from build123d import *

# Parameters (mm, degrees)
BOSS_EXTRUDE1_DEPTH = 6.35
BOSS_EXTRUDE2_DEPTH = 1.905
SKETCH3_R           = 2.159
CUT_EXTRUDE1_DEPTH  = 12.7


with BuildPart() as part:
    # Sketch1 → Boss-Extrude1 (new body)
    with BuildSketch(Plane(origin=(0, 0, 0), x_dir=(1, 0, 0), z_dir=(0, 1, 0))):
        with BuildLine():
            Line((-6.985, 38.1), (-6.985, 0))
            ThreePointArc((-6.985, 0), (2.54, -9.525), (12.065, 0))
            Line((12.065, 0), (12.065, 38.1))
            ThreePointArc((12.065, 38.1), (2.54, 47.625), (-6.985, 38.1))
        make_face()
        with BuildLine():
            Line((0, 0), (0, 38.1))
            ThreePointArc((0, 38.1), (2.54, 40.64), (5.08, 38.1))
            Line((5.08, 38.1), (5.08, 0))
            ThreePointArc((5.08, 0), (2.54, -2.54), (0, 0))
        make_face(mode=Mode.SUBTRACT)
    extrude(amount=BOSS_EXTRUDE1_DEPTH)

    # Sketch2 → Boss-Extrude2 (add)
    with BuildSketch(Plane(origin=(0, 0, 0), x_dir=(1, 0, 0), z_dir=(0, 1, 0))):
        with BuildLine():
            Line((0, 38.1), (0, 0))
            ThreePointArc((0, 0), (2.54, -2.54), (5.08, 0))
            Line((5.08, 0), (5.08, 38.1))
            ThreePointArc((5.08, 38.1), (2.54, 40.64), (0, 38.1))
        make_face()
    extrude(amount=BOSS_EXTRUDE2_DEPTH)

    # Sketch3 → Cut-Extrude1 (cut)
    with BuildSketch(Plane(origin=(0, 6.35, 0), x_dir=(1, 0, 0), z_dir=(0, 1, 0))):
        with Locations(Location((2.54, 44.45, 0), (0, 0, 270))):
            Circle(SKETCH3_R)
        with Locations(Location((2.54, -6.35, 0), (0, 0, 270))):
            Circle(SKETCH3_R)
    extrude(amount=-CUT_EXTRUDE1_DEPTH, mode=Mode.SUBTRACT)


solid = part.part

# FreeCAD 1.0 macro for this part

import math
import FreeCAD as App
import Part
import Sketcher
Q = App.Units.Quantity

doc = App.newDocument("Part")
body = doc.addObject("PartDesign::Body", "Body")

# Sketch on XZ plane
sketch1 = body.newObject("Sketcher::SketchObject", "Sketch")
sketch1.AttachmentSupport = (doc.getObject("XZ_Plane"), [""])
sketch1.MapMode = "FlatFace"
sketch1.addGeometry([
    Part.LineSegment(App.Vector(-7, -38.1, 0), App.Vector(-7, 0, 0)),  # 0
    Part.ArcOfCircle(Part.Circle(App.Vector(2.5, 0, 0), App.Vector(0, 0, 1), 9.5), math.radians(0), math.radians(180)),  # 1
    Part.LineSegment(App.Vector(12.1, 0, 0), App.Vector(12.1, -38.1, 0)),  # 2
    Part.ArcOfCircle(Part.Circle(App.Vector(2.5, -38.1, 0), App.Vector(0, 0, 1), 9.5), math.radians(180), math.radians(360)),  # 3
    Part.ArcOfCircle(Part.Circle(App.Vector(2.5, 0, 0), App.Vector(0, 0, 1), 2.5), math.radians(0), math.radians(180)),  # 4
    Part.LineSegment(App.Vector(0, 0, 0), App.Vector(0, -38.1, 0)),  # 5
    Part.ArcOfCircle(Part.Circle(App.Vector(2.5, -38.1, 0), App.Vector(0, 0, 1), 2.5), math.radians(180), math.radians(360)),  # 6
    Part.LineSegment(App.Vector(5.1, -38.1, 0), App.Vector(5.1, 0, 0)),  # 7
], False)
sketch1.addConstraint([
    Sketcher.Constraint("Tangent", 0, 2, 1, 2),
    Sketcher.Constraint("Tangent", 1, 1, 2, 1),
    Sketcher.Constraint("Tangent", 2, 2, 3, 2),
    Sketcher.Constraint("Tangent", 3, 1, 0, 1),
    Sketcher.Constraint("Tangent", 4, 2, 5, 1),
    Sketcher.Constraint("Tangent", 5, 2, 6, 1),
    Sketcher.Constraint("Tangent", 6, 2, 7, 1),
    Sketcher.Constraint("Tangent", 7, 2, 4, 1),
    Sketcher.Constraint("Vertical", 0),
    Sketcher.Constraint("Vertical", 2),
    Sketcher.Constraint("Vertical", 5),
    Sketcher.Constraint("Vertical", 7),
    Sketcher.Constraint("Coincident", 4, 2, -1, 1),
    Sketcher.Constraint("Coincident", 4, 3, 1, 3),
    Sketcher.Constraint("Horizontal", 6, 3, 2, 2),
    Sketcher.Constraint("Radius", 4, Q("0.1 in")),
    Sketcher.Constraint("DistanceY", 0, 1, 0, 2, Q("1.5 in")),
    Sketcher.Constraint("Radius", 1, Q("0.375 in")),
])
pad1 = body.newObject("PartDesign::Pad", "Pad")
pad1.Profile = sketch1
pad1.Length = Q("0.25 in")
pad1.Reversed = True

# Sketch on XZ plane
sketch2 = body.newObject("Sketcher::SketchObject", "Sketch001")
sketch2.AttachmentSupport = (doc.getObject("XZ_Plane"), [""])
sketch2.MapMode = "FlatFace"
sketch2.addGeometry([
    Part.LineSegment(App.Vector(0, -38.1, 0), App.Vector(0, 0, 0)),
    Part.ArcOfCircle(Part.Circle(App.Vector(2.5, 0, 0), App.Vector(0, 0, 1), 2.5), math.radians(0), math.radians(180)),
    Part.LineSegment(App.Vector(5.1, 0, 0), App.Vector(5.1, -38.1, 0)),
    Part.ArcOfCircle(Part.Circle(App.Vector(2.5, -38.1, 0), App.Vector(0, 0, 1), 2.5), math.radians(180), math.radians(360)),
], False)
sketch2.addConstraint([
    Sketcher.Constraint("Tangent", 0, 2, 1, 2),
    Sketcher.Constraint("Tangent", 1, 1, 2, 1),
    Sketcher.Constraint("Tangent", 2, 2, 3, 2),
    Sketcher.Constraint("Tangent", 3, 1, 0, 1),
    Sketcher.Constraint("Vertical", 0),
    Sketcher.Constraint("Vertical", 2),
    Sketcher.Constraint("Coincident", 0, 2, -1, 1),
    Sketcher.Constraint("Radius", 1, Q("0.1 in")),
    Sketcher.Constraint("DistanceY", 0, 1, 0, 2, Q("1.5 in")),
])
pad2 = body.newObject("PartDesign::Pad", "Pad001")
pad2.Profile = sketch2
pad2.Length = Q("0.075 in")
pad2.Reversed = True

# Sketch on XZ plane
sketch3 = body.newObject("Sketcher::SketchObject", "Sketch002")
sketch3.AttachmentSupport = (doc.getObject("XZ_Plane"), [""])
sketch3.MapMode = "FlatFace"
sketch3.AttachmentOffset = App.Placement(App.Vector(0, 0, -0.25 * 25.4), App.Rotation())
sketch3.addGeometry([
    Part.Circle(App.Vector(2.5, -44.5, 0), App.Vector(0, 0, 1), 2.2),
    Part.Circle(App.Vector(2.5, 6.3, 0), App.Vector(0, 0, 1), 2.2),
], False)
sketch3.addConstraint([
    Sketcher.Constraint("Equal", 0, 1),
    Sketcher.Constraint("Vertical", 0, 3, 1, 3),
    Sketcher.Constraint("Diameter", 0, Q("0.17 in")),
    Sketcher.Constraint("DistanceY", 0, 3, 1, 3, Q("2 in")),
    Sketcher.Constraint("DistanceX", -1, 1, 0, 3, Q("0.1 in")),
    Sketcher.Constraint("DistanceY", 0, 3, -1, 1, Q("1.75 in")),
])
pocket1 = body.newObject("PartDesign::Pocket", "Pocket")
pocket1.Profile = sketch3
pocket1.Length = Q("0.5 in")
pocket1.Reversed = True

doc.recompute()
